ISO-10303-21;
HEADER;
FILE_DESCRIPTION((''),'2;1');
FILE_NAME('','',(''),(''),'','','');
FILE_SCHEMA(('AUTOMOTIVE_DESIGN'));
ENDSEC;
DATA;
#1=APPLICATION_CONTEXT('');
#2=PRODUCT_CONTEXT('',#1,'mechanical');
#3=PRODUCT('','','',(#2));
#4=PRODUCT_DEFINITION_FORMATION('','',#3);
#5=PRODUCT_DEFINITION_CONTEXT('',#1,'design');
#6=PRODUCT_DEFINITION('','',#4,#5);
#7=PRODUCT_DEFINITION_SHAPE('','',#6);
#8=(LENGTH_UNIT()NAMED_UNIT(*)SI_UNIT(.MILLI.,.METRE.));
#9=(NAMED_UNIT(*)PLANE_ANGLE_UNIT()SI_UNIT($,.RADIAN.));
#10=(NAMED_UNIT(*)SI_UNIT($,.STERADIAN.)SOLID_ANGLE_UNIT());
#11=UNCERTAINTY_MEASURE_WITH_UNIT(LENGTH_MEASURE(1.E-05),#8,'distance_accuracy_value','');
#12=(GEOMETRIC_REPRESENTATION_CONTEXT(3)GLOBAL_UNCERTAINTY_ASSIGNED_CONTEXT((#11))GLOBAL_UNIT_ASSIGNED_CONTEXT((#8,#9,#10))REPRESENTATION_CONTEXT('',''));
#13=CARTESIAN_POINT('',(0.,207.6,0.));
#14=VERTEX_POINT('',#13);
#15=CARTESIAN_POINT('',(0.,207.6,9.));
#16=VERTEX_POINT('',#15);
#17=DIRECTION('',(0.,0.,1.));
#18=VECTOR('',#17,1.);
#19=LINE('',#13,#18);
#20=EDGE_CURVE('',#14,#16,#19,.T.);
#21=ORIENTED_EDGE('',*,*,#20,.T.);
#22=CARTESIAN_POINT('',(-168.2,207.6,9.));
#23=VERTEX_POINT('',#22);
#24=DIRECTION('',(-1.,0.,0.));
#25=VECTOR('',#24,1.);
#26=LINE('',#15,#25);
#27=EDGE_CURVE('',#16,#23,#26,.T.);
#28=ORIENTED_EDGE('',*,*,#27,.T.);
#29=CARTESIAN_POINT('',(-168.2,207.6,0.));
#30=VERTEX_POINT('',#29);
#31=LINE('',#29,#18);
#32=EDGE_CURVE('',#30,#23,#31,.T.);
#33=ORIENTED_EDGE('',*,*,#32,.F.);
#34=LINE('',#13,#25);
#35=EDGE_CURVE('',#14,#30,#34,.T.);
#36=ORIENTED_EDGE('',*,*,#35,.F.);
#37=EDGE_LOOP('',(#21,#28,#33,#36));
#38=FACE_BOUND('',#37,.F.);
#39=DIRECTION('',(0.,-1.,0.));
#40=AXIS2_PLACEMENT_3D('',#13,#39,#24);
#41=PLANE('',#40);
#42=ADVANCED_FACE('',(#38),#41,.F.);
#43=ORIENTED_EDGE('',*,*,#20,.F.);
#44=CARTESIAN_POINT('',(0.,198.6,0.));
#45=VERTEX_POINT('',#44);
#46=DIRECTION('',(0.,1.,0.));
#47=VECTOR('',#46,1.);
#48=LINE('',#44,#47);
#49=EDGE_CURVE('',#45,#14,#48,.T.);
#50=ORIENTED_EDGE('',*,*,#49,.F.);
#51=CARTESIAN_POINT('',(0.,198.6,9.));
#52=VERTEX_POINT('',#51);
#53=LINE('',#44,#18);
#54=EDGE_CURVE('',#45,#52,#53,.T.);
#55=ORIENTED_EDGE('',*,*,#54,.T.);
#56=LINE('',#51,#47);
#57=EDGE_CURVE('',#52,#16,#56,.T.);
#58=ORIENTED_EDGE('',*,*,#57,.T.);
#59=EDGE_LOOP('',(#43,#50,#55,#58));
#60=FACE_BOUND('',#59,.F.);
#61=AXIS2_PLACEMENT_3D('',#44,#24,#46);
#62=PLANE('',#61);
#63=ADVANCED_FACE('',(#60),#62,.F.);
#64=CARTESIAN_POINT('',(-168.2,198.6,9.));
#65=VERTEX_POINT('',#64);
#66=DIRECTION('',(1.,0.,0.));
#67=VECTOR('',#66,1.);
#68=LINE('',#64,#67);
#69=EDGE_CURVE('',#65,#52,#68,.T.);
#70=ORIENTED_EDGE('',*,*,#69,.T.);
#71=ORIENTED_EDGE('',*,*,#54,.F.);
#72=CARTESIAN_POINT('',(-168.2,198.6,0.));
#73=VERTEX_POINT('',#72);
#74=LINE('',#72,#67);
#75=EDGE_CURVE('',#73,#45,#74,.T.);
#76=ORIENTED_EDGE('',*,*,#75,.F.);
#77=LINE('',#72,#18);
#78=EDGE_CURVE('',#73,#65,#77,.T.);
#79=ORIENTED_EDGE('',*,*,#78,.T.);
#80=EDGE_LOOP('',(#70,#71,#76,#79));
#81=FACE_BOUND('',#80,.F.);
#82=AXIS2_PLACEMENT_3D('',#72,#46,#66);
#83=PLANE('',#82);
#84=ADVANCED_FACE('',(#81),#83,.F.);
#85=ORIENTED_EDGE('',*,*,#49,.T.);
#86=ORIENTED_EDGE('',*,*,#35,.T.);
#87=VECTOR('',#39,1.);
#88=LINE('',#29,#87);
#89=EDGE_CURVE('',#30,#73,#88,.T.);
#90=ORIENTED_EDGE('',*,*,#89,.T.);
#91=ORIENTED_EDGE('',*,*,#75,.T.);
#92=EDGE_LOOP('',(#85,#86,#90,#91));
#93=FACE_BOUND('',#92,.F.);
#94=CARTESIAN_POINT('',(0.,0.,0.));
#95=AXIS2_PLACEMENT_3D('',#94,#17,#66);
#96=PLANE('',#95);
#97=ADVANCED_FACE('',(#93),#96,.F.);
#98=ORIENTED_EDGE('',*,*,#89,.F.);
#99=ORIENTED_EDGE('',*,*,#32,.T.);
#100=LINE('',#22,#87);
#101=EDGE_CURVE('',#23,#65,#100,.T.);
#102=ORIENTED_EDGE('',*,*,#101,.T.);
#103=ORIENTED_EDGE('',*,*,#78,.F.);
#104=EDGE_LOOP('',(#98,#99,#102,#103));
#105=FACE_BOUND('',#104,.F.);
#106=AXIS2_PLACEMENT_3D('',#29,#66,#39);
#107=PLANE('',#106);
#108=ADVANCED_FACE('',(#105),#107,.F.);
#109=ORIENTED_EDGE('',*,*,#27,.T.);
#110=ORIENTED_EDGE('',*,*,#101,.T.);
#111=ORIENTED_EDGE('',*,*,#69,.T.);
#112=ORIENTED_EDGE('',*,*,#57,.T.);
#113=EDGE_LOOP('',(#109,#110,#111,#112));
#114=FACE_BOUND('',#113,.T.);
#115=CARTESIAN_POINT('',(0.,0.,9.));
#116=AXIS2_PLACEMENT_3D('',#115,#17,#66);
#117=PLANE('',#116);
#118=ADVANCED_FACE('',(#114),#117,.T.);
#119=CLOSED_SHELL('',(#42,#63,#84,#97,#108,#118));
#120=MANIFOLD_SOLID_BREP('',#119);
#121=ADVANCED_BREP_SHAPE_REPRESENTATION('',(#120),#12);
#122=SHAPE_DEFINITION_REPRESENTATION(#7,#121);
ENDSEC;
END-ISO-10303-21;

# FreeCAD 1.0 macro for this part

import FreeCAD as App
import Part
import Sketcher
from FreeCAD import Vector

doc = App.newDocument("Part")
body = doc.addObject("PartDesign::Body", "Body")

# Sketch on XY plane
sketch1 = body.newObject("Sketcher::SketchObject", "Sketch")
sketch1.AttachmentSupport = (doc.getObject("XY_Plane"), [""])
sketch1.MapMode = "FlatFace"
sketch1.addGeometry(Part.LineSegment(Vector(0, 199, 0), Vector(0, 208, 0)), False)
sketch1.addGeometry(Part.LineSegment(Vector(0, 208, 0), Vector(-168, 208, 0)), False)
sketch1.addGeometry(Part.LineSegment(Vector(-168, 208, 0), Vector(-168, 199, 0)), False)
sketch1.addGeometry(Part.LineSegment(Vector(-168, 199, 0), Vector(0, 199, 0)), False)
sketch1.addConstraint(Sketcher.Constraint("Coincident", 0, 2, 1, 1))
sketch1.addConstraint(Sketcher.Constraint("Coincident", 1, 2, 2, 1))
sketch1.addConstraint(Sketcher.Constraint("Coincident", 2, 2, 3, 1))
sketch1.addConstraint(Sketcher.Constraint("Coincident", 3, 2, 0, 1))
sketch1.addConstraint(Sketcher.Constraint("Vertical", 0))
sketch1.addConstraint(Sketcher.Constraint("Horizontal", 1))
sketch1.addConstraint(Sketcher.Constraint("Vertical", 2))
sketch1.addConstraint(Sketcher.Constraint("Horizontal", 3))
sketch1.addConstraint(Sketcher.Constraint("PointOnObject", 0, 2, -2))
sketch1.addConstraint(Sketcher.Constraint("DistanceY", 0, 1, 0, 2, 9.0))
sketch1.addConstraint(Sketcher.Constraint("DistanceX", 1, 2, 1, 1, 168.2))
sketch1.addConstraint(Sketcher.Constraint("DistanceY", -1, 1, 0, 2, 207.6))
pad1 = body.newObject("PartDesign::Pad", "Pad")
pad1.Profile = sketch1
pad1.Length = 9

doc.recompute()
